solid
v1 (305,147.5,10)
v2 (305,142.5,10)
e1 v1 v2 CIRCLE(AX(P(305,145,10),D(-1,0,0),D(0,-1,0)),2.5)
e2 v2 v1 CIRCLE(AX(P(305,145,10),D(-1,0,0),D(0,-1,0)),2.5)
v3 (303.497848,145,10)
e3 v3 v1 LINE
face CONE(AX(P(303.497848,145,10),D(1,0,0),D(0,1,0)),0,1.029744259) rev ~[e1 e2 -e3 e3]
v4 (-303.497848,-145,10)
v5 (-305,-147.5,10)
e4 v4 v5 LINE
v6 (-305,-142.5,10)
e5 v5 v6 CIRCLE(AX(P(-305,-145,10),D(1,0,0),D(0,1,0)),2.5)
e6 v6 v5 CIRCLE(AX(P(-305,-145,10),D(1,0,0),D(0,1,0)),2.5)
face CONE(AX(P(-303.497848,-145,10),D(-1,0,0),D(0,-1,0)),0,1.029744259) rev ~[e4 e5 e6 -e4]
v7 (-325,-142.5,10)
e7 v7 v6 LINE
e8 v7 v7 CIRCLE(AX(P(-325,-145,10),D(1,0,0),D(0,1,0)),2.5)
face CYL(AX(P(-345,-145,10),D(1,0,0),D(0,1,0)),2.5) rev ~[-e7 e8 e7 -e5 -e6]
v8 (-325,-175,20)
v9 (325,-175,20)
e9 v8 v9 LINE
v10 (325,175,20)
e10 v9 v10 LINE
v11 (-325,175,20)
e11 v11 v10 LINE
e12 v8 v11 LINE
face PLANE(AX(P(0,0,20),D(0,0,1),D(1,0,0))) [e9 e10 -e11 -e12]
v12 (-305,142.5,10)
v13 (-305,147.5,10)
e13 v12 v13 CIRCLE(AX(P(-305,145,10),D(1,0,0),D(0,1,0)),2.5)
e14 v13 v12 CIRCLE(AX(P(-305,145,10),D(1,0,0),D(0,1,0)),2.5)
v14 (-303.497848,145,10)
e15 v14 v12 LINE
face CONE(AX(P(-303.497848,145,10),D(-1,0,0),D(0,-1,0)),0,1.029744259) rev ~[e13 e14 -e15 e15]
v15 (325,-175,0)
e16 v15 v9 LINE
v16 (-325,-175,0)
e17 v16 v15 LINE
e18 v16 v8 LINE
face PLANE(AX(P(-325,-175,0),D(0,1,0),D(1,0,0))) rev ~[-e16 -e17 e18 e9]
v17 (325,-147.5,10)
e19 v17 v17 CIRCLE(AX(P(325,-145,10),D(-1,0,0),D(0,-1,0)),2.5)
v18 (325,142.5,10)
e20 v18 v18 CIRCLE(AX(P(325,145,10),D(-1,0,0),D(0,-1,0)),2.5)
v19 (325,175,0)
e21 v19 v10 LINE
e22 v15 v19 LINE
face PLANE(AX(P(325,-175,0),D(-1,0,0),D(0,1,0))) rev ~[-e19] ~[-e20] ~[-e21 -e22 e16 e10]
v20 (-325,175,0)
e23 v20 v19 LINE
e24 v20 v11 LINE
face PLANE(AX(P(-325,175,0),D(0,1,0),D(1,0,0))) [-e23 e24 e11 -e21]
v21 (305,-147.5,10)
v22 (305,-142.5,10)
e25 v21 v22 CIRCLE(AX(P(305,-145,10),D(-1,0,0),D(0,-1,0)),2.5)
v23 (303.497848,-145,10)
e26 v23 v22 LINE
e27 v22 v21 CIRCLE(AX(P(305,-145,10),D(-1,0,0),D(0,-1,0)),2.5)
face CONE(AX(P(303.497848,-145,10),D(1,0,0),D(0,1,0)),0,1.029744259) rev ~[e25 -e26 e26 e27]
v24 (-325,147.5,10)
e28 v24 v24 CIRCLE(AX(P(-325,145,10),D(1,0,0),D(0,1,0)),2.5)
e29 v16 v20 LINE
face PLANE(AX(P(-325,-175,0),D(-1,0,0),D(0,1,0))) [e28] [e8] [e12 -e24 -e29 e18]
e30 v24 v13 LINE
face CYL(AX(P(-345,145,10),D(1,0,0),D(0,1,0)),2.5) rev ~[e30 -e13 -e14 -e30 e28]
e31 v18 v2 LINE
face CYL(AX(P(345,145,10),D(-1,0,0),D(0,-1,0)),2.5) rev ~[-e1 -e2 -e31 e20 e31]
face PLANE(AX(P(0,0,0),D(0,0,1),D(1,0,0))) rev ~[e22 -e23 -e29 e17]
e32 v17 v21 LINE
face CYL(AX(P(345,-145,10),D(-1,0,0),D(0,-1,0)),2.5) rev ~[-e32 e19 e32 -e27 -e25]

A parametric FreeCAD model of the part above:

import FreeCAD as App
import Part
import Sketcher

V = App.Vector

doc = App.newDocument("Part")
body = doc.addObject("PartDesign::Body", "Body")

sketch1 = doc.addObject("Sketcher::SketchObject", "Sketch")
body.addObject(sketch1)
sketch1.AttachmentSupport = (doc.XY_Plane, [""])
sketch1.MapMode = "FlatFace"
sketch1.addGeometry([
    Part.LineSegment(V(-325, 175, 0), V(-325, -175, 0)),
    Part.LineSegment(V(-325, -175, 0), V(325, -175, 0)),
    Part.LineSegment(V(325, -175, 0), V(325, 175, 0)),
    Part.LineSegment(V(325, 175, 0), V(-325, 175, 0)),
], False)
sketch1.addConstraint([
    Sketcher.Constraint("Coincident", 0, 2, 1, 1),
    Sketcher.Constraint("Coincident", 1, 2, 2, 1),
    Sketcher.Constraint("Coincident", 2, 2, 3, 1),
    Sketcher.Constraint("Coincident", 3, 2, 0, 1),
    Sketcher.Constraint("Vertical", 0),
    Sketcher.Constraint("Horizontal", 1),
    Sketcher.Constraint("Vertical", 2),
    Sketcher.Constraint("Horizontal", 3),
    Sketcher.Constraint("Symmetric", 0, 2, 2, 2, -1, 1),
    Sketcher.Constraint("DistanceX", 1, 1, 1, 2, 650.0),
    Sketcher.Constraint("DistanceY", 0, 2, 0, 1, 350.0),
])
pad1 = doc.addObject("PartDesign::Pad", "Pad")
body.addObject(pad1)
pad1.Profile = sketch1
pad1.Length = 20

sketch2 = doc.addObject("Sketcher::SketchObject", "Sketch001")
body.addObject(sketch2)
sketch2.AttachmentSupport = (doc.YZ_Plane, [""])
sketch2.MapMode = "FlatFace"
sketch2.AttachmentOffset = App.Placement(V(0, 0, -325), App.Rotation())
sketch2.addGeometry([
    Part.Circle(V(145, 10, 0), V(0, 0, 1), 2.5),
    Part.Circle(V(-145, 10, 0), V(0, 0, 1), 2.5),
], False)
sketch2.addConstraint([
    Sketcher.Constraint("Equal", 0, 1),
    Sketcher.Constraint("Symmetric", 0, 3, 1, 3, -2),
    Sketcher.Constraint("Diameter", 0, 5.0),
    Sketcher.Constraint("DistanceX", -1, 1, 0, 3, 145.0),
    Sketcher.Constraint("DistanceY", -1, 1, 0, 3, 10.0),
])
doc.recompute()
hole = doc.addObject("PartDesign::Hole", "Hole")
body.addObject(hole)
hole.Profile = sketch2
hole.ThreadType = "None"
hole.Diameter = 5
hole.DepthType = "Dimension"
hole.Depth = 20
hole.DrillPoint = "Angled"
hole.DrillPointAngle = 118
hole.Reversed = True

sketch3 = doc.addObject("Sketcher::SketchObject", "Sketch002")
body.addObject(sketch3)
sketch3.AttachmentSupport = (doc.YZ_Plane, [""])
sketch3.MapMode = "FlatFace"
sketch3.AttachmentOffset = App.Placement(V(0, 0, 325), App.Rotation())
sketch3.addGeometry([
    Part.Circle(V(-145, 10, 0), V(0, 0, 1), 2.5),
    Part.Circle(V(145, 10, 0), V(0, 0, 1), 2.5),
], False)
sketch3.addConstraint([
    Sketcher.Constraint("Equal", 0, 1),
    Sketcher.Constraint("Symmetric", 0, 3, 1, 3, -2),
    Sketcher.Constraint("Diameter", 0, 5.0),
    Sketcher.Constraint("DistanceX", 0, 3, -1, 1, 145.0),
    Sketcher.Constraint("DistanceY", -1, 1, 0, 3, 10.0),
])
doc.recompute()
hole2 = doc.addObject("PartDesign::Hole", "Hole001")
body.addObject(hole2)
hole2.Profile = sketch3
hole2.ThreadType = "None"
hole2.Diameter = 5
hole2.DepthType = "Dimension"
hole2.Depth = 20
hole2.DrillPoint = "Angled"
hole2.DrillPointAngle = 118

doc.recompute()
